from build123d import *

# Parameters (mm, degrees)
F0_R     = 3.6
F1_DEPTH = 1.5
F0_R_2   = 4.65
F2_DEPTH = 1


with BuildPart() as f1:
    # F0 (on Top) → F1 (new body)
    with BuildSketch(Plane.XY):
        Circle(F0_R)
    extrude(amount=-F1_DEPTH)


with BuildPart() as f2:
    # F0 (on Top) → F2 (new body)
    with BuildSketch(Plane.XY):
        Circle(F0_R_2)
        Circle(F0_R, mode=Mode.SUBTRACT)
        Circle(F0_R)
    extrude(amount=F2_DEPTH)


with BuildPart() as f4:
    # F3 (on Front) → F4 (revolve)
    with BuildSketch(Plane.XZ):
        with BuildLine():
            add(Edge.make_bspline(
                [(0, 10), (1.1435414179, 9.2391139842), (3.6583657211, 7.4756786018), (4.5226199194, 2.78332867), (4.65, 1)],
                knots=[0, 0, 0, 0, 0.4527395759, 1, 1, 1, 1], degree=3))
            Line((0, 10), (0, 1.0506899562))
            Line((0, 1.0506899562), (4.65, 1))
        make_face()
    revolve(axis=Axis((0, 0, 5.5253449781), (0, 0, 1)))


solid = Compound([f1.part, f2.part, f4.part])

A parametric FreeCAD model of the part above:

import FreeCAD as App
import Part
import Sketcher
Q = App.Units.Quantity

doc = App.newDocument("Part")
body = doc.addObject("PartDesign::Body", "Body")

# Sketch on XY plane
sketch1 = body.newObject("Sketcher::SketchObject", "Sketch")
sketch1.AttachmentSupport = (doc.getObject("XY_Plane"), [""])
sketch1.MapMode = "FlatFace"
sketch1.addGeometry(Part.Circle(App.Vector(0, 0, 0), App.Vector(0, 0, 1), 3.6), False)
sketch1.addConstraint([
    Sketcher.Constraint("Coincident", 0, 3, -1, 1),
    Sketcher.Constraint("Diameter", 0, Q("7.2 mm")),
])
pad1 = body.newObject("PartDesign::Pad", "Pad")
pad1.Profile = sketch1
pad1.Length = 1.5
pad1.Reversed = True
body2 = doc.addObject("PartDesign::Body", "Body001")

# Sketch on XY plane
sketch2 = body2.newObject("Sketcher::SketchObject", "Sketch001")
sketch2.AttachmentSupport = (doc.getObject("XY_Plane001"), [""])
sketch2.MapMode = "FlatFace"
sketch2.addGeometry(Part.Circle(App.Vector(0, 0, 0), App.Vector(0, 0, 1), 4.7), False)
sketch2.addConstraint([
    Sketcher.Constraint("Coincident", 0, 3, -1, 1),
    Sketcher.Constraint("Diameter", 0, Q("9.3 mm")),
])
pad2 = body2.newObject("PartDesign::Pad", "Pad001")
pad2.Profile = sketch2
pad2.Length = 1
body3 = doc.addObject("PartDesign::Body", "Body002")

# Sketch on XZ plane
sketch3 = body3.newObject("Sketcher::SketchObject", "Sketch002")
sketch3.AttachmentSupport = (doc.getObject("XZ_Plane002"), [""])
sketch3.MapMode = "FlatFace"
sketch3.addGeometry([
    Part.BSplineCurve([App.Vector(0, 10, 0), App.Vector(1.143541, 9.239114, 0), App.Vector(3.658366, 7.475679, 0), App.Vector(4.52262, 2.783329, 0), App.Vector(4.65, 1, 0)], [4, 1, 4], [0, 0.452739576, 1], False, 3, [1, 1, 1, 1, 1], False),
    Part.LineSegment(App.Vector(0, 10, 0), App.Vector(0, 1.05069, 0)),
    Part.LineSegment(App.Vector(0, 1.05069, 0), App.Vector(4.65, 1, 0)),
], False)
sketch3.addConstraint([
    Sketcher.Constraint("Block", 0),
    Sketcher.Constraint("Coincident", 0, 1, 1, 1),
    Sketcher.Constraint("Coincident", 1, 2, 2, 1),
    Sketcher.Constraint("Coincident", 2, 2, 0, 2),
    Sketcher.Constraint("Vertical", 1),
    Sketcher.Constraint("DistanceY", 1, 2, 1, 1, Q("8.94931 mm")),
])
revolution = body3.newObject("PartDesign::Revolution", "Revolution")
revolution.Profile = sketch3
revolution.ReferenceAxis = (sketch3, ["V_Axis"])
revolution.Angle = 360

doc.recompute()
